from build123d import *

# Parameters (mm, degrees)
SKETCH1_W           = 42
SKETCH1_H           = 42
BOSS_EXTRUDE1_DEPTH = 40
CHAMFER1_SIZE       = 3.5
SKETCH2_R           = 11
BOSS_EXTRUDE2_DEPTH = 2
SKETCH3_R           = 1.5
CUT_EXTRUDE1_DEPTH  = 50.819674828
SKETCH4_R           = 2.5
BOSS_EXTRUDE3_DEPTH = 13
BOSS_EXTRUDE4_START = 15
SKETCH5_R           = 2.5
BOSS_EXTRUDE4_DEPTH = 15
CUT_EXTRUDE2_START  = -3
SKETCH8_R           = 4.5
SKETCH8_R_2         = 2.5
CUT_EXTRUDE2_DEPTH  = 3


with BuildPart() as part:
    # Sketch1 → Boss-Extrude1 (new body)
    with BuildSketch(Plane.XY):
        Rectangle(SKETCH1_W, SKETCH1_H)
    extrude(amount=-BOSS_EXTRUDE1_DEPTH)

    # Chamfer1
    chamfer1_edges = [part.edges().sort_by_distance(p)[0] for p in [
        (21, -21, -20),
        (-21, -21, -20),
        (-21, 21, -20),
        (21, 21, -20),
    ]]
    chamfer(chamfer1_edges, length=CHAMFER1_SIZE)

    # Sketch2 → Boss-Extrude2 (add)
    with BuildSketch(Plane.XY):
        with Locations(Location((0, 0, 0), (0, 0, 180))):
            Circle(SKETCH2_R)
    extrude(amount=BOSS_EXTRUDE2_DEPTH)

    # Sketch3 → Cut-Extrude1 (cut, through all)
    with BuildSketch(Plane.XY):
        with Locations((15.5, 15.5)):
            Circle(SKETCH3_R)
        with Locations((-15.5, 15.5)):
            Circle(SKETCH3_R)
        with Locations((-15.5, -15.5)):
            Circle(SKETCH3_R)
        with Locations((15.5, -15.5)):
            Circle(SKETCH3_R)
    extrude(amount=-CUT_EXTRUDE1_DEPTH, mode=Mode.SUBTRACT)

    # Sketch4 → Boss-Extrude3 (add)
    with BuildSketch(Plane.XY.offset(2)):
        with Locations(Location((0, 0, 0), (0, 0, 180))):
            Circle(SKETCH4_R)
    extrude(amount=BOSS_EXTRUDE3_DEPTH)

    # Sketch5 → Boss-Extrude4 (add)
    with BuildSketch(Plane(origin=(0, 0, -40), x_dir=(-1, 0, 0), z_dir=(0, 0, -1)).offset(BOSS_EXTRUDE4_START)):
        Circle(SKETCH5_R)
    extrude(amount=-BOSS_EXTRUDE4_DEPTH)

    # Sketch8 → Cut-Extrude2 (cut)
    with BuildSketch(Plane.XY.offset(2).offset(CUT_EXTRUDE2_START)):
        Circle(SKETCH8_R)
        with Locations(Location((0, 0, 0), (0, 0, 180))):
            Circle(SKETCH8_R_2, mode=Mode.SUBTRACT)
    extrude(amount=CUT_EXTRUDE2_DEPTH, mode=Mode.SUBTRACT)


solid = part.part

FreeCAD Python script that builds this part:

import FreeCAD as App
import Part
import Sketcher

V = App.Vector
Q = App.Units.Quantity


def edges_at(feature, points):
    """Names of the edges that pass closest to the given points."""
    edges = feature.Shape.Edges
    near = lambda p: min(range(len(edges)), key=lambda i: edges[i].distToShape(Part.Vertex(*p))[0])
    return sorted({f"Edge{near(p) + 1}" for p in points})

doc = App.newDocument("Part")
body = doc.addObject("PartDesign::Body", "Body")

# Sketch on XY plane
sketch1 = doc.addObject("Sketcher::SketchObject", "Sketch")
body.addObject(sketch1)
sketch1.AttachmentSupport = (doc.XY_Plane, [""])
sketch1.MapMode = "FlatFace"
sketch1.addGeometry(Part.LineSegment(V(-21, 21, 0), V(-21, -21, 0)), False)
sketch1.addGeometry(Part.LineSegment(V(-21, -21, 0), V(21, -21, 0)), False)
sketch1.addGeometry(Part.LineSegment(V(21, -21, 0), V(21, 21, 0)), False)
sketch1.addGeometry(Part.LineSegment(V(21, 21, 0), V(-21, 21, 0)), False)
sketch1.addConstraint(Sketcher.Constraint("Coincident", 0, 2, 1, 1))
sketch1.addConstraint(Sketcher.Constraint("Coincident", 1, 2, 2, 1))
sketch1.addConstraint(Sketcher.Constraint("Coincident", 2, 2, 3, 1))
sketch1.addConstraint(Sketcher.Constraint("Coincident", 3, 2, 0, 1))
sketch1.addConstraint(Sketcher.Constraint("Vertical", 0))
sketch1.addConstraint(Sketcher.Constraint("Horizontal", 1))
sketch1.addConstraint(Sketcher.Constraint("Vertical", 2))
sketch1.addConstraint(Sketcher.Constraint("Horizontal", 3))
sketch1.addConstraint(Sketcher.Constraint("Symmetric", 0, 2, 2, 2, -1, 1))
sketch1.addConstraint(Sketcher.Constraint("Equal", 3, 0))
sketch1.addConstraint(Sketcher.Constraint("DistanceX", 1, 1, 1, 2, Q("42 mm")))
pad1 = doc.addObject("PartDesign::Pad", "Pad")
body.addObject(pad1)
pad1.Profile = sketch1
pad1.Length = 40
pad1.Reversed = True
doc.recompute()

chamfer = doc.addObject("PartDesign::Chamfer", "Chamfer")
body.addObject(chamfer)
chamfer.Base = (pad1, edges_at(pad1, [
    (21, -21, -20),
    (-21, -21, -20),
    (-21, 21, -20),
    (21, 21, -20),
]))
chamfer.Size = 3.5

# Sketch on XY plane
sketch2 = doc.addObject("Sketcher::SketchObject", "Sketch001")
body.addObject(sketch2)
sketch2.AttachmentSupport = (doc.XY_Plane, [""])
sketch2.MapMode = "FlatFace"
sketch2.addGeometry(Part.Circle(V(0, 0, 0), V(0, 0, 1), 11), False)
sketch2.addConstraint(Sketcher.Constraint("Coincident", 0, 3, -1, 1))
sketch2.addConstraint(Sketcher.Constraint("Diameter", 0, Q("22 mm")))
pad2 = doc.addObject("PartDesign::Pad", "Pad001")
body.addObject(pad2)
pad2.Profile = sketch2
pad2.Length = 2

# Sketch on XY plane
sketch3 = doc.addObject("Sketcher::SketchObject", "Sketch002")
body.addObject(sketch3)
sketch3.AttachmentSupport = (doc.XY_Plane, [""])
sketch3.MapMode = "FlatFace"
sketch3.addGeometry(Part.Circle(V(15.5, 15.5, 0), V(0, 0, 1), 1.5), False)
sketch3.addGeometry(Part.Circle(V(-15.5, 15.5, 0), V(0, 0, 1), 1.5), False)
sketch3.addGeometry(Part.Circle(V(-15.5, -15.5, 0), V(0, 0, 1), 1.5), False)
sketch3.addGeometry(Part.Circle(V(15.5, -15.5, 0), V(0, 0, 1), 1.5), False)
sketch3.addConstraint(Sketcher.Constraint("Equal", 0, 1))
sketch3.addConstraint(Sketcher.Constraint("Equal", 1, 2))
sketch3.addConstraint(Sketcher.Constraint("Equal", 2, 3))
sketch3.addConstraint(Sketcher.Constraint("Symmetric", 0, 3, 2, 3, -1, 1))
sketch3.addConstraint(Sketcher.Constraint("Symmetric", 1, 3, 3, 3, -1, 1))
sketch3.addConstraint(Sketcher.Constraint("Symmetric", 0, 3, 1, 3, -2))
sketch3.addConstraint(Sketcher.Constraint("Diameter", 0, Q("3 mm")))
sketch3.addConstraint(Sketcher.Constraint("DistanceX", 1, 3, 0, 3, Q("31 mm")))
sketch3.addConstraint(Sketcher.Constraint("DistanceY", 2, 3, 1, 3, Q("31 mm")))
pocket1 = doc.addObject("PartDesign::Pocket", "Pocket")
body.addObject(pocket1)
pocket1.Profile = sketch3
pocket1.Type = "ThroughAll"

# Sketch on XY plane
sketch4 = doc.addObject("Sketcher::SketchObject", "Sketch003")
body.addObject(sketch4)
sketch4.AttachmentSupport = (doc.XY_Plane, [""])
sketch4.MapMode = "FlatFace"
sketch4.AttachmentOffset = App.Placement(V(0, 0, 2), App.Rotation())
sketch4.addGeometry(Part.Circle(V(0, 0, 0), V(0, 0, 1), 2.5), False)
sketch4.addConstraint(Sketcher.Constraint("Coincident", 0, 3, -1, 1))
sketch4.addConstraint(Sketcher.Constraint("Diameter", 0, Q("5 mm")))
pad3 = doc.addObject("PartDesign::Pad", "Pad002")
body.addObject(pad3)
pad3.Profile = sketch4
pad3.Length = 13

# Sketch on XY plane
sketch5 = doc.addObject("Sketcher::SketchObject", "Sketch004")
body.addObject(sketch5)
sketch5.AttachmentSupport = (doc.XY_Plane, [""])
sketch5.MapMode = "FlatFace"
sketch5.AttachmentOffset = App.Placement(V(0, 0, -55), App.Rotation())
sketch5.addGeometry(Part.Circle(V(0, 0, 0), V(0, 0, 1), 2.5), False)
sketch5.addConstraint(Sketcher.Constraint("Coincident", 0, 3, -1, 1))
sketch5.addConstraint(Sketcher.Constraint("Diameter", 0, Q("5 mm")))
pad4 = doc.addObject("PartDesign::Pad", "Pad003")
body.addObject(pad4)
pad4.Profile = sketch5
pad4.Length = 15

# Sketch on XY plane
sketch6 = doc.addObject("Sketcher::SketchObject", "Sketch005")
body.addObject(sketch6)
sketch6.AttachmentSupport = (doc.XY_Plane, [""])
sketch6.MapMode = "FlatFace"
sketch6.AttachmentOffset = App.Placement(V(0, 0, -1), App.Rotation())
sketch6.addGeometry(Part.Circle(V(0, 0, 0), V(0, 0, 1), 4.5), False)
sketch6.addGeometry(Part.Circle(V(0, 0, 0), V(0, 0, 1), 2.5), False)
sketch6.addConstraint(Sketcher.Constraint("Coincident", 0, 3, -1, 1))
sketch6.addConstraint(Sketcher.Constraint("Coincident", 1, 3, -1, 1))
sketch6.addConstraint(Sketcher.Constraint("Diameter", 0, Q("9 mm")))
sketch6.addConstraint(Sketcher.Constraint("Diameter", 1, Q("5 mm")))
pocket2 = doc.addObject("PartDesign::Pocket", "Pocket001")
body.addObject(pocket2)
pocket2.Profile = sketch6
pocket2.Length = 3
pocket2.Reversed = True

doc.recompute()
